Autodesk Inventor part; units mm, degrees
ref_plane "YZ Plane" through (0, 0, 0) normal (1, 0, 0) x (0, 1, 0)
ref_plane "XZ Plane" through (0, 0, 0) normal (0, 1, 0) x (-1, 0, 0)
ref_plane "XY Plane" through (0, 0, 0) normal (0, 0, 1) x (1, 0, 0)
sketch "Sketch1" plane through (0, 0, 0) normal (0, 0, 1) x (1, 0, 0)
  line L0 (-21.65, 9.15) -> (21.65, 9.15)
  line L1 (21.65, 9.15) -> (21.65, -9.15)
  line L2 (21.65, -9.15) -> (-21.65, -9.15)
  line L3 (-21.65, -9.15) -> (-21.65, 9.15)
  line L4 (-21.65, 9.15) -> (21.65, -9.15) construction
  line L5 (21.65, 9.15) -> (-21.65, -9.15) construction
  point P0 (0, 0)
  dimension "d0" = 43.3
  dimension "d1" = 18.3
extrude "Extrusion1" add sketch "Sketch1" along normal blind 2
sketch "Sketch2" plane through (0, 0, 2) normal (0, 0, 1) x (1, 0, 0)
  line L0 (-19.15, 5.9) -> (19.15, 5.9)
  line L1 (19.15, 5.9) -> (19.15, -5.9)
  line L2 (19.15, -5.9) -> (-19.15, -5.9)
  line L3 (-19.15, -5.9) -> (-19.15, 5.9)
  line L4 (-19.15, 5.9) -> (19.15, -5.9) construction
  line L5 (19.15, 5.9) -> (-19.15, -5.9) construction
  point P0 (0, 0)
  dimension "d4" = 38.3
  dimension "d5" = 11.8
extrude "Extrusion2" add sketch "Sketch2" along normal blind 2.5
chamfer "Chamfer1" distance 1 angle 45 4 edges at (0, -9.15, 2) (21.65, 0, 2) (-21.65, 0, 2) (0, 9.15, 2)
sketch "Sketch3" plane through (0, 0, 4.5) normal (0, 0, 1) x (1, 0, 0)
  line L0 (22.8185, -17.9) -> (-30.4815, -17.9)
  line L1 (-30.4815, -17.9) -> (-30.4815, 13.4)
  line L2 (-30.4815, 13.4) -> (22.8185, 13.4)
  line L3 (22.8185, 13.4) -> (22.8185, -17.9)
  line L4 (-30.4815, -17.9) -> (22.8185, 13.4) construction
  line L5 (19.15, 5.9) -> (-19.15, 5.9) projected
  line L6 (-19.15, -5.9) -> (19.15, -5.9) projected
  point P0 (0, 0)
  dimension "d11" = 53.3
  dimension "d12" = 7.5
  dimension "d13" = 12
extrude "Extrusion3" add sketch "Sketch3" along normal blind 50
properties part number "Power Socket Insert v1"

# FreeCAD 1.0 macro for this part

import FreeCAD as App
import Part
import Sketcher


def edges_at(feature, points):
    """Names of the edges that pass closest to the given points."""
    edges = feature.Shape.Edges
    near = lambda p: min(range(len(edges)), key=lambda i: edges[i].distToShape(Part.Vertex(*p))[0])
    return sorted({f"Edge{near(p) + 1}" for p in points})

doc = App.newDocument("Part")
body = doc.addObject("PartDesign::Body", "Body")

# Sketch on XY plane
sketch1 = body.newObject("Sketcher::SketchObject", "Sketch")
sketch1.AttachmentSupport = (doc.getObject("XY_Plane"), [""])
sketch1.MapMode = "FlatFace"
sketch1.addGeometry([
    Part.LineSegment(App.Vector(21.65, 9.15, 0), App.Vector(-21.65, 9.15, 0)),
    Part.LineSegment(App.Vector(-21.65, 9.15, 0), App.Vector(-21.65, -9.15, 0)),
    Part.LineSegment(App.Vector(-21.65, -9.15, 0), App.Vector(21.65, -9.15, 0)),
    Part.LineSegment(App.Vector(21.65, -9.15, 0), App.Vector(21.65, 9.15, 0)),
], False)
sketch1.addConstraint([
    Sketcher.Constraint("Coincident", 0, 2, 1, 1),
    Sketcher.Constraint("Coincident", 1, 2, 2, 1),
    Sketcher.Constraint("Coincident", 2, 2, 3, 1),
    Sketcher.Constraint("Coincident", 3, 2, 0, 1),
    Sketcher.Constraint("Horizontal", 0),
    Sketcher.Constraint("Vertical", 1),
    Sketcher.Constraint("Horizontal", 2),
    Sketcher.Constraint("Vertical", 3),
    Sketcher.Constraint("Symmetric", 0, 2, 2, 2, -1, 1),
    Sketcher.Constraint("DistanceX", 0, 2, 0, 1, 43.3),
    Sketcher.Constraint("DistanceY", 1, 2, 1, 1, 18.3),
])
pad1 = body.newObject("PartDesign::Pad", "Pad")
pad1.Profile = sketch1
pad1.Length = 2

# Sketch on XY plane
sketch2 = body.newObject("Sketcher::SketchObject", "Sketch001")
sketch2.AttachmentSupport = (doc.getObject("XY_Plane"), [""])
sketch2.MapMode = "FlatFace"
sketch2.AttachmentOffset = App.Placement(App.Vector(0, 0, 2), App.Rotation())
sketch2.addGeometry([
    Part.LineSegment(App.Vector(19.15, 5.9, 0), App.Vector(-19.15, 5.9, 0)),
    Part.LineSegment(App.Vector(-19.15, 5.9, 0), App.Vector(-19.15, -5.9, 0)),
    Part.LineSegment(App.Vector(-19.15, -5.9, 0), App.Vector(19.15, -5.9, 0)),
    Part.LineSegment(App.Vector(19.15, -5.9, 0), App.Vector(19.15, 5.9, 0)),
], False)
sketch2.addConstraint([
    Sketcher.Constraint("Coincident", 0, 2, 1, 1),
    Sketcher.Constraint("Coincident", 1, 2, 2, 1),
    Sketcher.Constraint("Coincident", 2, 2, 3, 1),
    Sketcher.Constraint("Coincident", 3, 2, 0, 1),
    Sketcher.Constraint("Horizontal", 0),
    Sketcher.Constraint("Vertical", 1),
    Sketcher.Constraint("Horizontal", 2),
    Sketcher.Constraint("Vertical", 3),
    Sketcher.Constraint("Symmetric", 0, 2, 2, 2, -1, 1),
    Sketcher.Constraint("DistanceX", 0, 2, 0, 1, 38.3),
    Sketcher.Constraint("DistanceY", 1, 2, 1, 1, 11.8),
])
pad2 = body.newObject("PartDesign::Pad", "Pad001")
pad2.Profile = sketch2
pad2.Length = 2.5
doc.recompute()

chamfer = body.newObject("PartDesign::Chamfer", "Chamfer")
chamfer.Base = (pad2, edges_at(pad2, [
    (0, -9.15, 2),
    (21.65, 0, 2),
    (-21.65, 0, 2),
    (0, 9.15, 2),
]))
chamfer.Size = 1

# Sketch on XY plane
sketch3 = body.newObject("Sketcher::SketchObject", "Sketch002")
sketch3.AttachmentSupport = (doc.getObject("XY_Plane"), [""])
sketch3.MapMode = "FlatFace"
sketch3.AttachmentOffset = App.Placement(App.Vector(0, 0, 4.5), App.Rotation())
sketch3.addGeometry([
    Part.LineSegment(App.Vector(-30.4815, -17.9, 0), App.Vector(22.8185, -17.9, 0)),
    Part.LineSegment(App.Vector(22.8185, -17.9, 0), App.Vector(22.8185, 13.4, 0)),
    Part.LineSegment(App.Vector(22.8185, 13.4, 0), App.Vector(-30.4815, 13.4, 0)),
    Part.LineSegment(App.Vector(-30.4815, 13.4, 0), App.Vector(-30.4815, -17.9, 0)),
], False)
sketch3.addConstraint([
    Sketcher.Constraint("Coincident", 0, 2, 1, 1),
    Sketcher.Constraint("Coincident", 1, 2, 2, 1),
    Sketcher.Constraint("Coincident", 2, 2, 3, 1),
    Sketcher.Constraint("Coincident", 3, 2, 0, 1),
    Sketcher.Constraint("Horizontal", 0),
    Sketcher.Constraint("Vertical", 1),
    Sketcher.Constraint("Horizontal", 2),
    Sketcher.Constraint("Vertical", 3),
    Sketcher.Constraint("DistanceX", 0, 1, 0, 2, 53.3),
    Sketcher.Constraint("DistanceY", 1, 1, 1, 2, 31.3),
    Sketcher.Constraint("DistanceY", 0, 2, -1, 1, 17.9),
    Sketcher.Constraint("DistanceX", -1, 1, 0, 2, 22.8185),
])
pad3 = body.newObject("PartDesign::Pad", "Pad002")
pad3.Profile = sketch3
pad3.Length = 50

doc.recompute()
